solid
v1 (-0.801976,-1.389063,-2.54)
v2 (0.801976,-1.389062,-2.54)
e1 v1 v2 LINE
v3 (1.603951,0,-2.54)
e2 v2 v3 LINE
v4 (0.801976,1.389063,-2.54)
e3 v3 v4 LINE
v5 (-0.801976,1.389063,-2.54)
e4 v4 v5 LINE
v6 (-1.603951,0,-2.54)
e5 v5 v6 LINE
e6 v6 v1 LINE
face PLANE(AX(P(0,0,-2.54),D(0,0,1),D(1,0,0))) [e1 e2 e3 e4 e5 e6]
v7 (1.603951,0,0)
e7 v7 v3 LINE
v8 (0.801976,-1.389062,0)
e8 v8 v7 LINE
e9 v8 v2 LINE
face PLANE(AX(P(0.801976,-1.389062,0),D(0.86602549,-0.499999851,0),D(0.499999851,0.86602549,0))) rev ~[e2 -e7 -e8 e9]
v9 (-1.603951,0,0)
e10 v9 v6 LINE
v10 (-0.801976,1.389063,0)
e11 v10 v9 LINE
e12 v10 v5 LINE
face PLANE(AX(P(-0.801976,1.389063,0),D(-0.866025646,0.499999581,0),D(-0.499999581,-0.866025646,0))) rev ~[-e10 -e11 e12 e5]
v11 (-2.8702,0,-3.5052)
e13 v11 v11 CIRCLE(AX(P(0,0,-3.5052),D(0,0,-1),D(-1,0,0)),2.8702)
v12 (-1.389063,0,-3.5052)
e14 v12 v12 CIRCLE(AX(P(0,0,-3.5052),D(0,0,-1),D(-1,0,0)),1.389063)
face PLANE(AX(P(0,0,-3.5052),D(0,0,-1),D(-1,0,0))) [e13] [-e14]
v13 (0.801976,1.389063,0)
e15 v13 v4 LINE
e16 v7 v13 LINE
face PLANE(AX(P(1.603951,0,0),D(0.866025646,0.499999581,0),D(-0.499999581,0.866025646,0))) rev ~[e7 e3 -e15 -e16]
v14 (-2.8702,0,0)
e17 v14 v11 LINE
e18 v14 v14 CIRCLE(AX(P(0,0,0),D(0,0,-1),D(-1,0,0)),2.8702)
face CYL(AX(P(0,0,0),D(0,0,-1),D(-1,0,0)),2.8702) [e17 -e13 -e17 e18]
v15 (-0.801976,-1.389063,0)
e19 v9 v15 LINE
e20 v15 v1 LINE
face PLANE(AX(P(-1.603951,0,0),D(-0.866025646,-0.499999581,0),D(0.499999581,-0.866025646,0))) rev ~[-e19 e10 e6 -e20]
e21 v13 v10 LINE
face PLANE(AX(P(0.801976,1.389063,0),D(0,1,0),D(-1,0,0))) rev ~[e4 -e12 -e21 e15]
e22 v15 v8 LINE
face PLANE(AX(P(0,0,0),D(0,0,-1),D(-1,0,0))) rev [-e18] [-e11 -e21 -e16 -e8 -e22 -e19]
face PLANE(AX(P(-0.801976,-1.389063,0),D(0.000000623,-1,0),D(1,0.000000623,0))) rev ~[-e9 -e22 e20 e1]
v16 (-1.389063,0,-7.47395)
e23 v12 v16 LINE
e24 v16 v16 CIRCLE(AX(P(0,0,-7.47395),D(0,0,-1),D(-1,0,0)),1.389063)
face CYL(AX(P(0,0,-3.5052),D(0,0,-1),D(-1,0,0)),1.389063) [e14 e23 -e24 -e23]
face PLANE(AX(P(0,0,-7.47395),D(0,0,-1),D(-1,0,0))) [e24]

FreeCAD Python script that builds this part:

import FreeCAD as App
import Part
import Sketcher
Q = App.Units.Quantity


def add_polygon(sketch, points):
    """Adds a closed chain of lines whose ends are joined by coincident constraints."""
    first, n = sketch.GeometryCount, len(points)
    for a, b in zip(points, points[1:] + points[:1]):
        sketch.addGeometry(Part.LineSegment(App.Vector(*a, 0), App.Vector(*b, 0)), False)
    for i in range(n):
        sketch.addConstraint(Sketcher.Constraint("Coincident", first + i, 2, first + (i + 1) % n, 1))

doc = App.newDocument("Part")
params = doc.addObject("Spreadsheet::Sheet", "Params")
for row, (alias, value) in enumerate([
    ("sketch1_width", "0.113 in"),
    ("sketch1_height", "0.138 in"),
    ("sketch1_height2", "0.15625 in"),
    ("revolution_angle", "360 deg"),
    ("pocket1_length", "0.1 in"),
], start=1):
    params.set(f"A{row}", alias)
    params.set(f"B{row}", "=" + value)
    params.setAlias(f"B{row}", alias)

body = doc.addObject("PartDesign::Body", "Body")

# Sketch on XZ plane
sketch1 = body.newObject("Sketcher::SketchObject", "Sketch")
sketch1.AttachmentSupport = (doc.getObject("XZ_Plane"), [""])
sketch1.MapMode = "FlatFace"
add_polygon(sketch1, [(0, -7.5), (0, 0), (-2.9, 0), (-2.9, -3.5), (-1.4, -3.5), (-1.4, -7.5)])  # lines 0-5
sketch1.addConstraint([
    Sketcher.Constraint("Vertical", 0),
    Sketcher.Constraint("Horizontal", 1),
    Sketcher.Constraint("Vertical", 2),
    Sketcher.Constraint("Horizontal", 3),
    Sketcher.Constraint("Vertical", 4),
    Sketcher.Constraint("Horizontal", 5),
    Sketcher.Constraint("Coincident", 0, 2, -1, 1),
    Sketcher.Constraint("DistanceX", 1, 2, 1, 1, Q("0.113 in")),
    Sketcher.Constraint("DistanceY", 2, 2, 2, 1, Q("0.138 in")),
    Sketcher.Constraint("DistanceY", 4, 2, 4, 1, Q("0.15625 in")),
    Sketcher.Constraint("DistanceX", 3, 1, 3, 2, 1.481137),
])
sketch1.setExpression("Constraints[13]", "Params.sketch1_width")
sketch1.setExpression("Constraints[14]", "Params.sketch1_height")
sketch1.setExpression("Constraints[15]", "Params.sketch1_height2")
revolution = body.newObject("PartDesign::Revolution", "Revolution")
revolution.Profile = sketch1
revolution.ReferenceAxis = (sketch1, ["V_Axis"])
revolution.setExpression("Angle", "Params.revolution_angle")

# Sketch on XY plane
sketch2 = body.newObject("Sketcher::SketchObject", "Sketch001")
sketch2.AttachmentSupport = (doc.getObject("XY_Plane"), [""])
sketch2.MapMode = "FlatFace"
add_polygon(sketch2, [(0.8, 1.4), (-0.8, 1.4), (-1.6, 0), (-0.8, -1.4), (0.8, -1.4), (1.6, 0)])  # lines 0-5
sketch2.addConstraint([
    Sketcher.Constraint("Horizontal", 0),
    Sketcher.Constraint("Horizontal", 3),
    Sketcher.Constraint("Symmetric", 0, 2, 3, 2, -1, 1),
    Sketcher.Constraint("Symmetric", 1, 2, 4, 2, -1, 1),
    Sketcher.Constraint("PointOnObject", 1, 2, -1),
    Sketcher.Constraint("Parallel", 2, 5),
    Sketcher.Constraint("Vertical", 0, 2, 2, 2),
    Sketcher.Constraint("Angle", 4, Q("60.00001 deg")),
    Sketcher.Constraint("DistanceY", 2, 2, 0, 2, Q("0.109375 in")),
    Sketcher.Constraint("DistanceX", 1, 2, 4, 2, 3.207902),
])
pocket1 = body.newObject("PartDesign::Pocket", "Pocket")
pocket1.Profile = sketch2
pocket1.setExpression("Length", "Params.pocket1_length")

doc.recompute()
